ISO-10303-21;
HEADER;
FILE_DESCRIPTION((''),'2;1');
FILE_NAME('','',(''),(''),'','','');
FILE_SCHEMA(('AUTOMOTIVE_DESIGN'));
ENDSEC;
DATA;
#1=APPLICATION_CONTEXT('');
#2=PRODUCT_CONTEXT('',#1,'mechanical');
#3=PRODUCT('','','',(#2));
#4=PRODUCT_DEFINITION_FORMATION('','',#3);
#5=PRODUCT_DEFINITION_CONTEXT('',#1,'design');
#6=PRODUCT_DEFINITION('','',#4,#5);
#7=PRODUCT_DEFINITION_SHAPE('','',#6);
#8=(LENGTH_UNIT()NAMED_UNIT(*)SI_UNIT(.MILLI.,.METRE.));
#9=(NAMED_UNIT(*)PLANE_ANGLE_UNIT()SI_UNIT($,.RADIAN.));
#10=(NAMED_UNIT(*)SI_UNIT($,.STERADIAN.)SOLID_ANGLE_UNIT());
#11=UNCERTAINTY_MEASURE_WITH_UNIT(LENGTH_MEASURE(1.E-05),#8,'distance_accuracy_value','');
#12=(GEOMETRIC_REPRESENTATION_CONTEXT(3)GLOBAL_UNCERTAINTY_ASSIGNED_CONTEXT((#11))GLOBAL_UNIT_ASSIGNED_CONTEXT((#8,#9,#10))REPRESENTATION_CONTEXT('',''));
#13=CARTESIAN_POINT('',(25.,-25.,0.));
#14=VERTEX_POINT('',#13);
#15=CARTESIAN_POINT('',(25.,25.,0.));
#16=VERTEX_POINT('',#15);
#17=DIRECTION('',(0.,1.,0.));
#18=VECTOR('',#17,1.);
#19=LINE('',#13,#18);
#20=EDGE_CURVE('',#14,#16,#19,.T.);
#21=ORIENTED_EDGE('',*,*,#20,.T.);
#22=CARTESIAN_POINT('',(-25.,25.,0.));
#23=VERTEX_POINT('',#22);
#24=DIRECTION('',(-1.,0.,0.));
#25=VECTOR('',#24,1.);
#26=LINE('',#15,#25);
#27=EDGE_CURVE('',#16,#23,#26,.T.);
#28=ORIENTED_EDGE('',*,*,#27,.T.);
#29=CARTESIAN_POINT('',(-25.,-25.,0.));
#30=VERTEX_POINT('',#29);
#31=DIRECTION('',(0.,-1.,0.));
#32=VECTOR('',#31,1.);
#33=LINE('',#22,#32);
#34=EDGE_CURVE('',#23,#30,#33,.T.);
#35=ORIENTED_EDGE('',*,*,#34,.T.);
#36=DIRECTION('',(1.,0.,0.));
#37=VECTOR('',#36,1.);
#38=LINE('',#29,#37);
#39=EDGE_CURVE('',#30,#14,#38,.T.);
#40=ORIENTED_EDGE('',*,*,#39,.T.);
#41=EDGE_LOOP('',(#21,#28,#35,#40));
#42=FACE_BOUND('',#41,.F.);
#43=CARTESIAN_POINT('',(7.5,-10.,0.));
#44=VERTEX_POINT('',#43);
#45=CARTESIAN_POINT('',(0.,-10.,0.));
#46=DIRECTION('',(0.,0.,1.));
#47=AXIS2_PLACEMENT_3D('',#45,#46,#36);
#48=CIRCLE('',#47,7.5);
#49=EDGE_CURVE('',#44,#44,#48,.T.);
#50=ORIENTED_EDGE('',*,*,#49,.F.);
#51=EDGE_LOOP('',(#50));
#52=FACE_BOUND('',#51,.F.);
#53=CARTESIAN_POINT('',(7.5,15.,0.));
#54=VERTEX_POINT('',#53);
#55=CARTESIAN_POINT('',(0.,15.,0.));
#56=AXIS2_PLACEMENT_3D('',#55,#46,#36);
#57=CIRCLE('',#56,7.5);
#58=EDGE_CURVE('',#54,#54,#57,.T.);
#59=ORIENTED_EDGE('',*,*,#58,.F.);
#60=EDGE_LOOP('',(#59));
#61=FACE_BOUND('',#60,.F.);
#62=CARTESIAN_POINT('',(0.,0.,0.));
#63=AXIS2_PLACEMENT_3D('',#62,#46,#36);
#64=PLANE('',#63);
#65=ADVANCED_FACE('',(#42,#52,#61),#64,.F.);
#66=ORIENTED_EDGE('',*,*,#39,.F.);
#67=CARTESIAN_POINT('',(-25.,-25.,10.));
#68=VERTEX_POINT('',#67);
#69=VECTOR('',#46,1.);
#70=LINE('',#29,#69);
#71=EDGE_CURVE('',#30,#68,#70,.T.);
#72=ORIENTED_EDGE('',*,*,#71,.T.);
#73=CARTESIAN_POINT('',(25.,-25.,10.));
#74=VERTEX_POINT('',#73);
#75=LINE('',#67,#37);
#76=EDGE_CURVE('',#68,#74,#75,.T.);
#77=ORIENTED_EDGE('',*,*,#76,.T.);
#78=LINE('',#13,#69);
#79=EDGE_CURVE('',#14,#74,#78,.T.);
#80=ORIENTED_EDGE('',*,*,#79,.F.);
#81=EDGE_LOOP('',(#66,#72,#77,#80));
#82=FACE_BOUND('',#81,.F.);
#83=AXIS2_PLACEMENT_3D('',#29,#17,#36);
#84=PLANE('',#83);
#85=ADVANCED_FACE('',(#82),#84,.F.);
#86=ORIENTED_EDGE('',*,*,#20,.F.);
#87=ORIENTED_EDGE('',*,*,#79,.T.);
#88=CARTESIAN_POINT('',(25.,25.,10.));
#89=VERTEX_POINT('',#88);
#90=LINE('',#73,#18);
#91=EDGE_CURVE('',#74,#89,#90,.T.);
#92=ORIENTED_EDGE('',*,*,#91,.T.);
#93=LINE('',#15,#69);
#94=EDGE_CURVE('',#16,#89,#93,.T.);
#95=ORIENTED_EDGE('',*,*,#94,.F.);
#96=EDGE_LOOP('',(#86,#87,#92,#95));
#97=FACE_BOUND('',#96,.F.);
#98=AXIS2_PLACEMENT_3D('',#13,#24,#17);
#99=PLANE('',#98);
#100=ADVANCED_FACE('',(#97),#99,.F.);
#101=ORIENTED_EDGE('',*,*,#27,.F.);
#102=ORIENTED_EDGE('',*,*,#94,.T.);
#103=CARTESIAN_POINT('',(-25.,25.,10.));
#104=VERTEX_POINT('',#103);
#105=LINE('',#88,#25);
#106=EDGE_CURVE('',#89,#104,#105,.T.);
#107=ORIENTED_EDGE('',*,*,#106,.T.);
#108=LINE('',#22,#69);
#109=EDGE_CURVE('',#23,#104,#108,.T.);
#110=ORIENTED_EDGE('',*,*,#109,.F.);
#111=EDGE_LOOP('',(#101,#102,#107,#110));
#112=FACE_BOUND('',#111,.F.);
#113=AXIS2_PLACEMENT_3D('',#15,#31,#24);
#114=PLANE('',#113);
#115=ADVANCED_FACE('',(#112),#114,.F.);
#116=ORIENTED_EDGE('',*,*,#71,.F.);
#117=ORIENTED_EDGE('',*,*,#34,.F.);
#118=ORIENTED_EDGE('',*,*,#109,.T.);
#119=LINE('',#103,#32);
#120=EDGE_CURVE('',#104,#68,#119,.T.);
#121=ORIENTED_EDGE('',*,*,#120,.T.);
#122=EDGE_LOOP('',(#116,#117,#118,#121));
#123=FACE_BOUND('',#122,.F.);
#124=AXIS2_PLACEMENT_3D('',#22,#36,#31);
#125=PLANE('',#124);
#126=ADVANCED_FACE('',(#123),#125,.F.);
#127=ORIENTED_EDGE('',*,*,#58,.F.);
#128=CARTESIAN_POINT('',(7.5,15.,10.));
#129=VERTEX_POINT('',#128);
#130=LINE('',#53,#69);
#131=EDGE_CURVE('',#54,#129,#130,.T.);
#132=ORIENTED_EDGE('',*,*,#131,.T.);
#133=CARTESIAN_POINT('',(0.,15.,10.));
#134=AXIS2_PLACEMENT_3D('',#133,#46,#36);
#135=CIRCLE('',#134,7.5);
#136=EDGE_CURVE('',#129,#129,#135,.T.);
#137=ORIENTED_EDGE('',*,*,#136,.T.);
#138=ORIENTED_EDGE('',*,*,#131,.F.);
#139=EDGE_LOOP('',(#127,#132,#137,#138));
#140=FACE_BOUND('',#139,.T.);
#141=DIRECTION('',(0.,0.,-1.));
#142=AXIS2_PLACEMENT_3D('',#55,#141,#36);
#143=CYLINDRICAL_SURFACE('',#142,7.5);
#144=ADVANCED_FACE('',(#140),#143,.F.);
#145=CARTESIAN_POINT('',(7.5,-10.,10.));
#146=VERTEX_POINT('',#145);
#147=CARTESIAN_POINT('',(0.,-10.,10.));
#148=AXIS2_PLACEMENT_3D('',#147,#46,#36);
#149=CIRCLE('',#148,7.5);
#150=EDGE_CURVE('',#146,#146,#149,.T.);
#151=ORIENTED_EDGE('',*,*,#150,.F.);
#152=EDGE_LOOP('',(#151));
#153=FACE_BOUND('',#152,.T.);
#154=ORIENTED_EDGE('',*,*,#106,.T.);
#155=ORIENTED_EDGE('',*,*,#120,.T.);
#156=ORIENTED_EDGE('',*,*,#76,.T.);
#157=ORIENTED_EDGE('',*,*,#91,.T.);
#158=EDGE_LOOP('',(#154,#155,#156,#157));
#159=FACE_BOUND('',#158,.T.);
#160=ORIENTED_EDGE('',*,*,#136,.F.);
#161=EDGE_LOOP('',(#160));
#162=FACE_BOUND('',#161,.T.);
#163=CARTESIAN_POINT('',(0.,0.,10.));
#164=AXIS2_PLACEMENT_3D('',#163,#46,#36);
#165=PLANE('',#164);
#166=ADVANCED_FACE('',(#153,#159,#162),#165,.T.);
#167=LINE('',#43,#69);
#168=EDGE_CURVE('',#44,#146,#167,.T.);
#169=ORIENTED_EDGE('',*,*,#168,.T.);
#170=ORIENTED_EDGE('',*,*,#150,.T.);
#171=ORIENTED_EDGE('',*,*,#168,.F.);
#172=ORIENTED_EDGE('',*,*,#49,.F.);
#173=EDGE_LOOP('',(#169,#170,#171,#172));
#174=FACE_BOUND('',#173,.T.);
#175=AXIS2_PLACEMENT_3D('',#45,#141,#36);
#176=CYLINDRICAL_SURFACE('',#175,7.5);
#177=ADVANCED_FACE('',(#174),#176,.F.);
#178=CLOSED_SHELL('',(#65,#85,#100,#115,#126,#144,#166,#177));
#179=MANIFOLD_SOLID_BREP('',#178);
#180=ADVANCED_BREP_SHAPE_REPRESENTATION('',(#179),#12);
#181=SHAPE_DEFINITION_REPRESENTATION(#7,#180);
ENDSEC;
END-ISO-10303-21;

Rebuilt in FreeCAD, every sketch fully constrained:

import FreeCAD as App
import Part
import Sketcher

V = App.Vector

doc = App.newDocument("Part")
body = doc.addObject("PartDesign::Body", "Body")

sketch1 = body.newObject("Sketcher::SketchObject", "Sketch")
sketch1.AttachmentSupport = (doc.getObject("XY_Plane"), [""])
sketch1.MapMode = "FlatFace"
sketch1.addGeometry([
    Part.LineSegment(V(25, -25, 0), V(25, 25, 0)),
    Part.LineSegment(V(25, 25, 0), V(-25, 25, 0)),
    Part.LineSegment(V(-25, 25, 0), V(-25, -25, 0)),
    Part.LineSegment(V(-25, -25, 0), V(25, -25, 0)),
    Part.Circle(V(0, -10, 0), V(0, 0, 1), 8),
    Part.Circle(V(0, 15, 0), V(0, 0, 1), 8),
], False)
sketch1.addConstraint([
    Sketcher.Constraint("Coincident", 0, 2, 1, 1),
    Sketcher.Constraint("Coincident", 1, 2, 2, 1),
    Sketcher.Constraint("Coincident", 2, 2, 3, 1),
    Sketcher.Constraint("Coincident", 3, 2, 0, 1),
    Sketcher.Constraint("Vertical", 0),
    Sketcher.Constraint("Horizontal", 1),
    Sketcher.Constraint("Vertical", 2),
    Sketcher.Constraint("Horizontal", 3),
    Sketcher.Constraint("Equal", 4, 5),
    Sketcher.Constraint("Symmetric", 0, 2, 2, 2, -1, 1),
    Sketcher.Constraint("PointOnObject", 4, 3, -2),
    Sketcher.Constraint("PointOnObject", 5, 3, -2),
    Sketcher.Constraint("Equal", 3, 0),
    Sketcher.Constraint("Diameter", 4, 15.0),
    Sketcher.Constraint("DistanceX", -1, 1, 0, 2, 25.0),
    Sketcher.Constraint("DistanceY", 4, 3, 5, 3, 25.0),
    Sketcher.Constraint("DistanceY", 4, 3, -1, 1, 10.0),
])
pad1 = body.newObject("PartDesign::Pad", "Pad")
pad1.Profile = sketch1
pad1.Length = 10

doc.recompute()
